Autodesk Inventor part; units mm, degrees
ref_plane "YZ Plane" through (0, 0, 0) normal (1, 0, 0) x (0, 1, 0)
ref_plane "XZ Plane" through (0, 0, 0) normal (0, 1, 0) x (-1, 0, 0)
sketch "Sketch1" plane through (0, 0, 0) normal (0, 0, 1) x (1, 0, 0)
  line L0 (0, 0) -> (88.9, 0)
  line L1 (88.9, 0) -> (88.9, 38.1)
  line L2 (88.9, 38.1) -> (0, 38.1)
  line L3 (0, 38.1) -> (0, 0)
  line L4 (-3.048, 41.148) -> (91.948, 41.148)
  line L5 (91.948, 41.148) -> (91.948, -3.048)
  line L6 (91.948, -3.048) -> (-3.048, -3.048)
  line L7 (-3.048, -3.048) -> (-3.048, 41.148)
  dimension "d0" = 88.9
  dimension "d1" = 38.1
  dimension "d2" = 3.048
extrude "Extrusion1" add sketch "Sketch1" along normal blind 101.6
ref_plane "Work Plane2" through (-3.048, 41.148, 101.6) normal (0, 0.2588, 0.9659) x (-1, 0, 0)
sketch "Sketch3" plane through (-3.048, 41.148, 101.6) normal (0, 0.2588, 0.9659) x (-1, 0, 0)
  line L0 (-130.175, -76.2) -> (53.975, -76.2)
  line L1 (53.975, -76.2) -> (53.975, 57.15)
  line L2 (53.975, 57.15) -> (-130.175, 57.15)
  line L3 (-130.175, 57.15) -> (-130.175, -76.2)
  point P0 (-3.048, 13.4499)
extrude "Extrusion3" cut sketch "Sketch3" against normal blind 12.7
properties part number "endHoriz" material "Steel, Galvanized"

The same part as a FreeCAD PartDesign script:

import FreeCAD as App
import Part
import Sketcher
Q = App.Units.Quantity


def add_polygon(sketch, points):
    """Adds a closed chain of lines whose ends are joined by coincident constraints."""
    first, n = sketch.GeometryCount, len(points)
    for a, b in zip(points, points[1:] + points[:1]):
        sketch.addGeometry(Part.LineSegment(App.Vector(*a, 0), App.Vector(*b, 0)), False)
    for i in range(n):
        sketch.addConstraint(Sketcher.Constraint("Coincident", first + i, 2, first + (i + 1) % n, 1))

doc = App.newDocument("Part")
body = doc.addObject("PartDesign::Body", "Body")

# Sketch on XY plane
sketch1 = doc.addObject("Sketcher::SketchObject", "Sketch")
body.addObject(sketch1)
sketch1.AttachmentSupport = (doc.XY_Plane, [""])
sketch1.MapMode = "FlatFace"
add_polygon(sketch1, [(92, 41), (-3, 41), (-3, -3), (92, -3)])  # lines 0-3
add_polygon(sketch1, [(89, 0), (0, 0), (0, 38), (89, 38)])  # lines 4-7
sketch1.addConstraint(Sketcher.Constraint("Horizontal", 0))
sketch1.addConstraint(Sketcher.Constraint("Vertical", 1))
sketch1.addConstraint(Sketcher.Constraint("Horizontal", 2))
sketch1.addConstraint(Sketcher.Constraint("Vertical", 3))
sketch1.addConstraint(Sketcher.Constraint("Horizontal", 4))
sketch1.addConstraint(Sketcher.Constraint("Vertical", 5))
sketch1.addConstraint(Sketcher.Constraint("Horizontal", 6))
sketch1.addConstraint(Sketcher.Constraint("Vertical", 7))
sketch1.addConstraint(Sketcher.Constraint("Coincident", 4, 2, -1, 1))
sketch1.addConstraint(Sketcher.Constraint("DistanceX", 4, 2, 4, 1, Q("3.5 in")))
sketch1.addConstraint(Sketcher.Constraint("DistanceY", 5, 1, 5, 2, Q("1.5 in")))
sketch1.addConstraint(Sketcher.Constraint("DistanceX", 0, 2, -1, 1, Q("0.12 in")))
sketch1.addConstraint(Sketcher.Constraint("DistanceY", 1, 2, -1, 1, Q("0.12 in")))
sketch1.addConstraint(Sketcher.Constraint("DistanceY", 5, 2, 0, 2, Q("0.12 in")))
sketch1.addConstraint(Sketcher.Constraint("DistanceX", 6, 2, 3, 2, Q("0.12 in")))
pad1 = doc.addObject("PartDesign::Pad", "Pad")
body.addObject(pad1)
pad1.Profile = sketch1
pad1.Length = Q("4 in")

# Sketch on an angled plane
sketch2 = doc.addObject("Sketcher::SketchObject", "Sketch001")
body.addObject(sketch2)
sketch2.Placement = App.Placement(App.Vector(-3.048, 41.148, 101.6), App.Rotation(App.Vector(-1, 0, 0), App.Vector(0, -0.965925826, 0.258819045), App.Vector(0, 0.258819045, 0.965925826), "ZXY"))
add_polygon(sketch2, [(-130, 57), (-130, -76), (54, -76), (54, 57)])  # lines 0-3
sketch2.addConstraint(Sketcher.Constraint("Vertical", 0))
sketch2.addConstraint(Sketcher.Constraint("Horizontal", 1))
sketch2.addConstraint(Sketcher.Constraint("Vertical", 2))
sketch2.addConstraint(Sketcher.Constraint("Horizontal", 3))
sketch2.addConstraint(Sketcher.Constraint("DistanceY", 0, 2, -1, 1, Q("3 in")))
sketch2.addConstraint(Sketcher.Constraint("DistanceX", 1, 1, 1, 2, Q("7.25 in")))
sketch2.addConstraint(Sketcher.Constraint("DistanceY", 0, 2, 0, 1, Q("5.25 in")))
sketch2.addConstraint(Sketcher.Constraint("DistanceX", 0, 2, -1, 1, Q("5.125 in")))
pocket1 = doc.addObject("PartDesign::Pocket", "Pocket")
body.addObject(pocket1)
pocket1.Profile = sketch2
pocket1.Length = Q("0.5 in")

doc.recompute()
